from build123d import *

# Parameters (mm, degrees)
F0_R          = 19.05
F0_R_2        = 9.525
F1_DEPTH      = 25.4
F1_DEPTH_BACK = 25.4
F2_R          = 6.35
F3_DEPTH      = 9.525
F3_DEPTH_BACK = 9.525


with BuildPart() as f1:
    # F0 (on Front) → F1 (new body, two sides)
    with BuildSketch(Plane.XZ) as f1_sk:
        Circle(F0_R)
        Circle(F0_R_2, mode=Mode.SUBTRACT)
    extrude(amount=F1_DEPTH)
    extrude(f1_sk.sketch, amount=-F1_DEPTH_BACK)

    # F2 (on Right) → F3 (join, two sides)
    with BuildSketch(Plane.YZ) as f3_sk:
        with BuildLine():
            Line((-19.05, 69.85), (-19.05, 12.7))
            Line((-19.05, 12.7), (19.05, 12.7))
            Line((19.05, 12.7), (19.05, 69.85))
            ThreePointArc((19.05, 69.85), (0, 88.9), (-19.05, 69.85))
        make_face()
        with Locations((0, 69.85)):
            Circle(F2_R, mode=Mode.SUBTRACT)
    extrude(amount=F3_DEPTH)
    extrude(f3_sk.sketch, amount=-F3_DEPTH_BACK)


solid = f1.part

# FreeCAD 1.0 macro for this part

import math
import FreeCAD as App
import Part
import Sketcher

V = App.Vector
Q = App.Units.Quantity

doc = App.newDocument("Part")
body = doc.addObject("PartDesign::Body", "Body")

# Sketch on XZ plane
sketch1 = body.newObject("Sketcher::SketchObject", "Sketch")
sketch1.AttachmentSupport = (doc.getObject("XZ_Plane"), [""])
sketch1.MapMode = "FlatFace"
sketch1.addGeometry([
    Part.Circle(V(0, 0, 0), V(0, 0, 1), 19.05),
    Part.Circle(V(0, 0, 0), V(0, 0, 1), 9.525),
], False)
sketch1.addConstraint([
    Sketcher.Constraint("Coincident", 0, 3, -1, 1),
    Sketcher.Constraint("Coincident", 1, 3, -1, 1),
    Sketcher.Constraint("Diameter", 0, Q("1.5 in")),
    Sketcher.Constraint("Diameter", 1, Q("0.75 in")),
])
pad1 = body.newObject("PartDesign::Pad", "Pad")
pad1.Profile = sketch1
pad1.Type = "TwoLengths"
pad1.Length = Q("1 in")
pad1.Length2 = Q("1 in")

# Sketch on YZ plane
sketch2 = body.newObject("Sketcher::SketchObject", "Sketch001")
sketch2.AttachmentSupport = (doc.getObject("YZ_Plane"), [""])
sketch2.MapMode = "FlatFace"
sketch2.addGeometry([
    Part.LineSegment(V(-19.05, 69.85, 0), V(-19.05, 12.7, 0)),  # 0
    Part.LineSegment(V(-19.05, 12.7, 0), V(19.05, 12.7, 0)),  # 1
    Part.LineSegment(V(19.05, 12.7, 0), V(19.05, 69.85, 0)),  # 2
    Part.ArcOfCircle(Part.Circle(V(0, 69.85, 0), V(0, 0, 1), 19.05), math.radians(0), math.radians(180)),  # 3
    Part.Circle(V(0, 69.85, 0), V(0, 0, 1), 6.35),  # 4
], False)
sketch2.addConstraint([
    Sketcher.Constraint("Coincident", 0, 2, 1, 1),
    Sketcher.Constraint("Coincident", 1, 2, 2, 1),
    Sketcher.Constraint("Tangent", 2, 2, 3, 1),
    Sketcher.Constraint("Tangent", 3, 2, 0, 1),
    Sketcher.Constraint("Vertical", 0),
    Sketcher.Constraint("Horizontal", 1),
    Sketcher.Constraint("Vertical", 2),
    Sketcher.Constraint("Coincident", 4, 3, 3, 3),
    Sketcher.Constraint("PointOnObject", 3, 3, -2),
    Sketcher.Constraint("Diameter", 4, Q("0.5 in")),
    Sketcher.Constraint("Radius", 3, Q("0.75 in")),
    Sketcher.Constraint("DistanceY", 0, 2, 0, 1, Q("2.25 in")),
    Sketcher.Constraint("DistanceY", -1, 1, 0, 2, Q("0.5 in")),
])
pad2 = body.newObject("PartDesign::Pad", "Pad001")
pad2.Profile = sketch2
pad2.Type = "TwoLengths"
pad2.Length = Q("0.375 in")
pad2.Length2 = Q("0.375 in")

doc.recompute()
